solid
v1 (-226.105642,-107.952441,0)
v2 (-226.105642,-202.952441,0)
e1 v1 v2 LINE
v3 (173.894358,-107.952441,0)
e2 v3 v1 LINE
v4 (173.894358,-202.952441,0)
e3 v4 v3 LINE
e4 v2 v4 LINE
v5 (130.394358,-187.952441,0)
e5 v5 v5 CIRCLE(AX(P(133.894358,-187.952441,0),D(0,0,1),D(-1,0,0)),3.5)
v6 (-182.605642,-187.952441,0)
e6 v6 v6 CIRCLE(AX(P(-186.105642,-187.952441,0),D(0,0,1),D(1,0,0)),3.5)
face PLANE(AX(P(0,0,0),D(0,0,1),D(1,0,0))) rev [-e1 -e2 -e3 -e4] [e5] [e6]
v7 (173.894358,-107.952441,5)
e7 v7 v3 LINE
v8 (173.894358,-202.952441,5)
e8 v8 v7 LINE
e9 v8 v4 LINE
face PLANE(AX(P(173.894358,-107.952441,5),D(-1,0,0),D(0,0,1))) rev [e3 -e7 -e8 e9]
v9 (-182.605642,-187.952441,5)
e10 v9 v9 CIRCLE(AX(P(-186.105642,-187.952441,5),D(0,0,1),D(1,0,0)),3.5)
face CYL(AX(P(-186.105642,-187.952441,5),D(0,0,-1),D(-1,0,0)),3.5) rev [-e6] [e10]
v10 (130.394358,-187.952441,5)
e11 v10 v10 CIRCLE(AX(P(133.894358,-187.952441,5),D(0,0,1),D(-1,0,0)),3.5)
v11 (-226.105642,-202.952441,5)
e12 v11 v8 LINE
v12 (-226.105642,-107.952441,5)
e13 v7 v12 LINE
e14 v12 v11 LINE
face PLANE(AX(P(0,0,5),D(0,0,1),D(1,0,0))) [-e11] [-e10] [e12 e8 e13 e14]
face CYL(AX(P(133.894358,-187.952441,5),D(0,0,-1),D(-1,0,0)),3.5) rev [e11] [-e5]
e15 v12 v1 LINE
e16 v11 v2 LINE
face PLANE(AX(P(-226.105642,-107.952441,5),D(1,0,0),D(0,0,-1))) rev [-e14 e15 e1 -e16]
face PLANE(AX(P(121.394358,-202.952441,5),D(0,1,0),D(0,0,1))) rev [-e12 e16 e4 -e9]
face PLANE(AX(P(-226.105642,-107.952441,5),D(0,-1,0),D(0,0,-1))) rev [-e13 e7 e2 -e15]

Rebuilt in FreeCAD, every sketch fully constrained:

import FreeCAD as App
import Part
import Sketcher

V = App.Vector

doc = App.newDocument("Part")
body = doc.addObject("PartDesign::Body", "Body")

sketch1 = body.newObject("Sketcher::SketchObject", "Sketch")
sketch1.AttachmentSupport = (doc.getObject("XY_Plane"), [""])
sketch1.MapMode = "FlatFace"
sketch1.addGeometry(Part.LineSegment(V(173.9, -108, 0), V(-226.1, -108, 0)), False)
sketch1.addGeometry(Part.LineSegment(V(-226.1, -108, 0), V(-226.1, -203, 0)), False)
sketch1.addGeometry(Part.LineSegment(V(-226.1, -203, 0), V(173.9, -203, 0)), False)
sketch1.addGeometry(Part.LineSegment(V(173.9, -203, 0), V(173.9, -108, 0)), False)
sketch1.addGeometry(Part.Circle(V(133.9, -188, 0), V(0, 0, 1), 3.5), False)
sketch1.addGeometry(Part.Circle(V(-186.1, -188, 0), V(0, 0, 1), 3.5), False)
sketch1.addConstraint(Sketcher.Constraint("Coincident", 0, 2, 1, 1))
sketch1.addConstraint(Sketcher.Constraint("Coincident", 1, 2, 2, 1))
sketch1.addConstraint(Sketcher.Constraint("Coincident", 2, 2, 3, 1))
sketch1.addConstraint(Sketcher.Constraint("Coincident", 3, 2, 0, 1))
sketch1.addConstraint(Sketcher.Constraint("Horizontal", 0))
sketch1.addConstraint(Sketcher.Constraint("Vertical", 1))
sketch1.addConstraint(Sketcher.Constraint("Horizontal", 2))
sketch1.addConstraint(Sketcher.Constraint("Vertical", 3))
sketch1.addConstraint(Sketcher.Constraint("Equal", 4, 5))
sketch1.addConstraint(Sketcher.Constraint("Horizontal", 4, 3, 5, 3))
sketch1.addConstraint(Sketcher.Constraint("Diameter", 4, 7.0))
sketch1.addConstraint(Sketcher.Constraint("DistanceX", 0, 2, 0, 1, 400.0))
sketch1.addConstraint(Sketcher.Constraint("DistanceY", 1, 2, 1, 1, 95.0))
sketch1.addConstraint(Sketcher.Constraint("DistanceX", 5, 3, 4, 3, 320.0))
sketch1.addConstraint(Sketcher.Constraint("DistanceX", 0, 2, 5, 3, 40.0))
sketch1.addConstraint(Sketcher.Constraint("DistanceY", 5, 3, 0, 2, 80.0))
sketch1.addConstraint(Sketcher.Constraint("DistanceX", -1, 1, 4, 3, 133.894358))
sketch1.addConstraint(Sketcher.Constraint("DistanceY", 4, 3, -1, 1, 187.952441))
pad1 = body.newObject("PartDesign::Pad", "Pad")
pad1.Profile = sketch1
pad1.Length = 5

doc.recompute()
